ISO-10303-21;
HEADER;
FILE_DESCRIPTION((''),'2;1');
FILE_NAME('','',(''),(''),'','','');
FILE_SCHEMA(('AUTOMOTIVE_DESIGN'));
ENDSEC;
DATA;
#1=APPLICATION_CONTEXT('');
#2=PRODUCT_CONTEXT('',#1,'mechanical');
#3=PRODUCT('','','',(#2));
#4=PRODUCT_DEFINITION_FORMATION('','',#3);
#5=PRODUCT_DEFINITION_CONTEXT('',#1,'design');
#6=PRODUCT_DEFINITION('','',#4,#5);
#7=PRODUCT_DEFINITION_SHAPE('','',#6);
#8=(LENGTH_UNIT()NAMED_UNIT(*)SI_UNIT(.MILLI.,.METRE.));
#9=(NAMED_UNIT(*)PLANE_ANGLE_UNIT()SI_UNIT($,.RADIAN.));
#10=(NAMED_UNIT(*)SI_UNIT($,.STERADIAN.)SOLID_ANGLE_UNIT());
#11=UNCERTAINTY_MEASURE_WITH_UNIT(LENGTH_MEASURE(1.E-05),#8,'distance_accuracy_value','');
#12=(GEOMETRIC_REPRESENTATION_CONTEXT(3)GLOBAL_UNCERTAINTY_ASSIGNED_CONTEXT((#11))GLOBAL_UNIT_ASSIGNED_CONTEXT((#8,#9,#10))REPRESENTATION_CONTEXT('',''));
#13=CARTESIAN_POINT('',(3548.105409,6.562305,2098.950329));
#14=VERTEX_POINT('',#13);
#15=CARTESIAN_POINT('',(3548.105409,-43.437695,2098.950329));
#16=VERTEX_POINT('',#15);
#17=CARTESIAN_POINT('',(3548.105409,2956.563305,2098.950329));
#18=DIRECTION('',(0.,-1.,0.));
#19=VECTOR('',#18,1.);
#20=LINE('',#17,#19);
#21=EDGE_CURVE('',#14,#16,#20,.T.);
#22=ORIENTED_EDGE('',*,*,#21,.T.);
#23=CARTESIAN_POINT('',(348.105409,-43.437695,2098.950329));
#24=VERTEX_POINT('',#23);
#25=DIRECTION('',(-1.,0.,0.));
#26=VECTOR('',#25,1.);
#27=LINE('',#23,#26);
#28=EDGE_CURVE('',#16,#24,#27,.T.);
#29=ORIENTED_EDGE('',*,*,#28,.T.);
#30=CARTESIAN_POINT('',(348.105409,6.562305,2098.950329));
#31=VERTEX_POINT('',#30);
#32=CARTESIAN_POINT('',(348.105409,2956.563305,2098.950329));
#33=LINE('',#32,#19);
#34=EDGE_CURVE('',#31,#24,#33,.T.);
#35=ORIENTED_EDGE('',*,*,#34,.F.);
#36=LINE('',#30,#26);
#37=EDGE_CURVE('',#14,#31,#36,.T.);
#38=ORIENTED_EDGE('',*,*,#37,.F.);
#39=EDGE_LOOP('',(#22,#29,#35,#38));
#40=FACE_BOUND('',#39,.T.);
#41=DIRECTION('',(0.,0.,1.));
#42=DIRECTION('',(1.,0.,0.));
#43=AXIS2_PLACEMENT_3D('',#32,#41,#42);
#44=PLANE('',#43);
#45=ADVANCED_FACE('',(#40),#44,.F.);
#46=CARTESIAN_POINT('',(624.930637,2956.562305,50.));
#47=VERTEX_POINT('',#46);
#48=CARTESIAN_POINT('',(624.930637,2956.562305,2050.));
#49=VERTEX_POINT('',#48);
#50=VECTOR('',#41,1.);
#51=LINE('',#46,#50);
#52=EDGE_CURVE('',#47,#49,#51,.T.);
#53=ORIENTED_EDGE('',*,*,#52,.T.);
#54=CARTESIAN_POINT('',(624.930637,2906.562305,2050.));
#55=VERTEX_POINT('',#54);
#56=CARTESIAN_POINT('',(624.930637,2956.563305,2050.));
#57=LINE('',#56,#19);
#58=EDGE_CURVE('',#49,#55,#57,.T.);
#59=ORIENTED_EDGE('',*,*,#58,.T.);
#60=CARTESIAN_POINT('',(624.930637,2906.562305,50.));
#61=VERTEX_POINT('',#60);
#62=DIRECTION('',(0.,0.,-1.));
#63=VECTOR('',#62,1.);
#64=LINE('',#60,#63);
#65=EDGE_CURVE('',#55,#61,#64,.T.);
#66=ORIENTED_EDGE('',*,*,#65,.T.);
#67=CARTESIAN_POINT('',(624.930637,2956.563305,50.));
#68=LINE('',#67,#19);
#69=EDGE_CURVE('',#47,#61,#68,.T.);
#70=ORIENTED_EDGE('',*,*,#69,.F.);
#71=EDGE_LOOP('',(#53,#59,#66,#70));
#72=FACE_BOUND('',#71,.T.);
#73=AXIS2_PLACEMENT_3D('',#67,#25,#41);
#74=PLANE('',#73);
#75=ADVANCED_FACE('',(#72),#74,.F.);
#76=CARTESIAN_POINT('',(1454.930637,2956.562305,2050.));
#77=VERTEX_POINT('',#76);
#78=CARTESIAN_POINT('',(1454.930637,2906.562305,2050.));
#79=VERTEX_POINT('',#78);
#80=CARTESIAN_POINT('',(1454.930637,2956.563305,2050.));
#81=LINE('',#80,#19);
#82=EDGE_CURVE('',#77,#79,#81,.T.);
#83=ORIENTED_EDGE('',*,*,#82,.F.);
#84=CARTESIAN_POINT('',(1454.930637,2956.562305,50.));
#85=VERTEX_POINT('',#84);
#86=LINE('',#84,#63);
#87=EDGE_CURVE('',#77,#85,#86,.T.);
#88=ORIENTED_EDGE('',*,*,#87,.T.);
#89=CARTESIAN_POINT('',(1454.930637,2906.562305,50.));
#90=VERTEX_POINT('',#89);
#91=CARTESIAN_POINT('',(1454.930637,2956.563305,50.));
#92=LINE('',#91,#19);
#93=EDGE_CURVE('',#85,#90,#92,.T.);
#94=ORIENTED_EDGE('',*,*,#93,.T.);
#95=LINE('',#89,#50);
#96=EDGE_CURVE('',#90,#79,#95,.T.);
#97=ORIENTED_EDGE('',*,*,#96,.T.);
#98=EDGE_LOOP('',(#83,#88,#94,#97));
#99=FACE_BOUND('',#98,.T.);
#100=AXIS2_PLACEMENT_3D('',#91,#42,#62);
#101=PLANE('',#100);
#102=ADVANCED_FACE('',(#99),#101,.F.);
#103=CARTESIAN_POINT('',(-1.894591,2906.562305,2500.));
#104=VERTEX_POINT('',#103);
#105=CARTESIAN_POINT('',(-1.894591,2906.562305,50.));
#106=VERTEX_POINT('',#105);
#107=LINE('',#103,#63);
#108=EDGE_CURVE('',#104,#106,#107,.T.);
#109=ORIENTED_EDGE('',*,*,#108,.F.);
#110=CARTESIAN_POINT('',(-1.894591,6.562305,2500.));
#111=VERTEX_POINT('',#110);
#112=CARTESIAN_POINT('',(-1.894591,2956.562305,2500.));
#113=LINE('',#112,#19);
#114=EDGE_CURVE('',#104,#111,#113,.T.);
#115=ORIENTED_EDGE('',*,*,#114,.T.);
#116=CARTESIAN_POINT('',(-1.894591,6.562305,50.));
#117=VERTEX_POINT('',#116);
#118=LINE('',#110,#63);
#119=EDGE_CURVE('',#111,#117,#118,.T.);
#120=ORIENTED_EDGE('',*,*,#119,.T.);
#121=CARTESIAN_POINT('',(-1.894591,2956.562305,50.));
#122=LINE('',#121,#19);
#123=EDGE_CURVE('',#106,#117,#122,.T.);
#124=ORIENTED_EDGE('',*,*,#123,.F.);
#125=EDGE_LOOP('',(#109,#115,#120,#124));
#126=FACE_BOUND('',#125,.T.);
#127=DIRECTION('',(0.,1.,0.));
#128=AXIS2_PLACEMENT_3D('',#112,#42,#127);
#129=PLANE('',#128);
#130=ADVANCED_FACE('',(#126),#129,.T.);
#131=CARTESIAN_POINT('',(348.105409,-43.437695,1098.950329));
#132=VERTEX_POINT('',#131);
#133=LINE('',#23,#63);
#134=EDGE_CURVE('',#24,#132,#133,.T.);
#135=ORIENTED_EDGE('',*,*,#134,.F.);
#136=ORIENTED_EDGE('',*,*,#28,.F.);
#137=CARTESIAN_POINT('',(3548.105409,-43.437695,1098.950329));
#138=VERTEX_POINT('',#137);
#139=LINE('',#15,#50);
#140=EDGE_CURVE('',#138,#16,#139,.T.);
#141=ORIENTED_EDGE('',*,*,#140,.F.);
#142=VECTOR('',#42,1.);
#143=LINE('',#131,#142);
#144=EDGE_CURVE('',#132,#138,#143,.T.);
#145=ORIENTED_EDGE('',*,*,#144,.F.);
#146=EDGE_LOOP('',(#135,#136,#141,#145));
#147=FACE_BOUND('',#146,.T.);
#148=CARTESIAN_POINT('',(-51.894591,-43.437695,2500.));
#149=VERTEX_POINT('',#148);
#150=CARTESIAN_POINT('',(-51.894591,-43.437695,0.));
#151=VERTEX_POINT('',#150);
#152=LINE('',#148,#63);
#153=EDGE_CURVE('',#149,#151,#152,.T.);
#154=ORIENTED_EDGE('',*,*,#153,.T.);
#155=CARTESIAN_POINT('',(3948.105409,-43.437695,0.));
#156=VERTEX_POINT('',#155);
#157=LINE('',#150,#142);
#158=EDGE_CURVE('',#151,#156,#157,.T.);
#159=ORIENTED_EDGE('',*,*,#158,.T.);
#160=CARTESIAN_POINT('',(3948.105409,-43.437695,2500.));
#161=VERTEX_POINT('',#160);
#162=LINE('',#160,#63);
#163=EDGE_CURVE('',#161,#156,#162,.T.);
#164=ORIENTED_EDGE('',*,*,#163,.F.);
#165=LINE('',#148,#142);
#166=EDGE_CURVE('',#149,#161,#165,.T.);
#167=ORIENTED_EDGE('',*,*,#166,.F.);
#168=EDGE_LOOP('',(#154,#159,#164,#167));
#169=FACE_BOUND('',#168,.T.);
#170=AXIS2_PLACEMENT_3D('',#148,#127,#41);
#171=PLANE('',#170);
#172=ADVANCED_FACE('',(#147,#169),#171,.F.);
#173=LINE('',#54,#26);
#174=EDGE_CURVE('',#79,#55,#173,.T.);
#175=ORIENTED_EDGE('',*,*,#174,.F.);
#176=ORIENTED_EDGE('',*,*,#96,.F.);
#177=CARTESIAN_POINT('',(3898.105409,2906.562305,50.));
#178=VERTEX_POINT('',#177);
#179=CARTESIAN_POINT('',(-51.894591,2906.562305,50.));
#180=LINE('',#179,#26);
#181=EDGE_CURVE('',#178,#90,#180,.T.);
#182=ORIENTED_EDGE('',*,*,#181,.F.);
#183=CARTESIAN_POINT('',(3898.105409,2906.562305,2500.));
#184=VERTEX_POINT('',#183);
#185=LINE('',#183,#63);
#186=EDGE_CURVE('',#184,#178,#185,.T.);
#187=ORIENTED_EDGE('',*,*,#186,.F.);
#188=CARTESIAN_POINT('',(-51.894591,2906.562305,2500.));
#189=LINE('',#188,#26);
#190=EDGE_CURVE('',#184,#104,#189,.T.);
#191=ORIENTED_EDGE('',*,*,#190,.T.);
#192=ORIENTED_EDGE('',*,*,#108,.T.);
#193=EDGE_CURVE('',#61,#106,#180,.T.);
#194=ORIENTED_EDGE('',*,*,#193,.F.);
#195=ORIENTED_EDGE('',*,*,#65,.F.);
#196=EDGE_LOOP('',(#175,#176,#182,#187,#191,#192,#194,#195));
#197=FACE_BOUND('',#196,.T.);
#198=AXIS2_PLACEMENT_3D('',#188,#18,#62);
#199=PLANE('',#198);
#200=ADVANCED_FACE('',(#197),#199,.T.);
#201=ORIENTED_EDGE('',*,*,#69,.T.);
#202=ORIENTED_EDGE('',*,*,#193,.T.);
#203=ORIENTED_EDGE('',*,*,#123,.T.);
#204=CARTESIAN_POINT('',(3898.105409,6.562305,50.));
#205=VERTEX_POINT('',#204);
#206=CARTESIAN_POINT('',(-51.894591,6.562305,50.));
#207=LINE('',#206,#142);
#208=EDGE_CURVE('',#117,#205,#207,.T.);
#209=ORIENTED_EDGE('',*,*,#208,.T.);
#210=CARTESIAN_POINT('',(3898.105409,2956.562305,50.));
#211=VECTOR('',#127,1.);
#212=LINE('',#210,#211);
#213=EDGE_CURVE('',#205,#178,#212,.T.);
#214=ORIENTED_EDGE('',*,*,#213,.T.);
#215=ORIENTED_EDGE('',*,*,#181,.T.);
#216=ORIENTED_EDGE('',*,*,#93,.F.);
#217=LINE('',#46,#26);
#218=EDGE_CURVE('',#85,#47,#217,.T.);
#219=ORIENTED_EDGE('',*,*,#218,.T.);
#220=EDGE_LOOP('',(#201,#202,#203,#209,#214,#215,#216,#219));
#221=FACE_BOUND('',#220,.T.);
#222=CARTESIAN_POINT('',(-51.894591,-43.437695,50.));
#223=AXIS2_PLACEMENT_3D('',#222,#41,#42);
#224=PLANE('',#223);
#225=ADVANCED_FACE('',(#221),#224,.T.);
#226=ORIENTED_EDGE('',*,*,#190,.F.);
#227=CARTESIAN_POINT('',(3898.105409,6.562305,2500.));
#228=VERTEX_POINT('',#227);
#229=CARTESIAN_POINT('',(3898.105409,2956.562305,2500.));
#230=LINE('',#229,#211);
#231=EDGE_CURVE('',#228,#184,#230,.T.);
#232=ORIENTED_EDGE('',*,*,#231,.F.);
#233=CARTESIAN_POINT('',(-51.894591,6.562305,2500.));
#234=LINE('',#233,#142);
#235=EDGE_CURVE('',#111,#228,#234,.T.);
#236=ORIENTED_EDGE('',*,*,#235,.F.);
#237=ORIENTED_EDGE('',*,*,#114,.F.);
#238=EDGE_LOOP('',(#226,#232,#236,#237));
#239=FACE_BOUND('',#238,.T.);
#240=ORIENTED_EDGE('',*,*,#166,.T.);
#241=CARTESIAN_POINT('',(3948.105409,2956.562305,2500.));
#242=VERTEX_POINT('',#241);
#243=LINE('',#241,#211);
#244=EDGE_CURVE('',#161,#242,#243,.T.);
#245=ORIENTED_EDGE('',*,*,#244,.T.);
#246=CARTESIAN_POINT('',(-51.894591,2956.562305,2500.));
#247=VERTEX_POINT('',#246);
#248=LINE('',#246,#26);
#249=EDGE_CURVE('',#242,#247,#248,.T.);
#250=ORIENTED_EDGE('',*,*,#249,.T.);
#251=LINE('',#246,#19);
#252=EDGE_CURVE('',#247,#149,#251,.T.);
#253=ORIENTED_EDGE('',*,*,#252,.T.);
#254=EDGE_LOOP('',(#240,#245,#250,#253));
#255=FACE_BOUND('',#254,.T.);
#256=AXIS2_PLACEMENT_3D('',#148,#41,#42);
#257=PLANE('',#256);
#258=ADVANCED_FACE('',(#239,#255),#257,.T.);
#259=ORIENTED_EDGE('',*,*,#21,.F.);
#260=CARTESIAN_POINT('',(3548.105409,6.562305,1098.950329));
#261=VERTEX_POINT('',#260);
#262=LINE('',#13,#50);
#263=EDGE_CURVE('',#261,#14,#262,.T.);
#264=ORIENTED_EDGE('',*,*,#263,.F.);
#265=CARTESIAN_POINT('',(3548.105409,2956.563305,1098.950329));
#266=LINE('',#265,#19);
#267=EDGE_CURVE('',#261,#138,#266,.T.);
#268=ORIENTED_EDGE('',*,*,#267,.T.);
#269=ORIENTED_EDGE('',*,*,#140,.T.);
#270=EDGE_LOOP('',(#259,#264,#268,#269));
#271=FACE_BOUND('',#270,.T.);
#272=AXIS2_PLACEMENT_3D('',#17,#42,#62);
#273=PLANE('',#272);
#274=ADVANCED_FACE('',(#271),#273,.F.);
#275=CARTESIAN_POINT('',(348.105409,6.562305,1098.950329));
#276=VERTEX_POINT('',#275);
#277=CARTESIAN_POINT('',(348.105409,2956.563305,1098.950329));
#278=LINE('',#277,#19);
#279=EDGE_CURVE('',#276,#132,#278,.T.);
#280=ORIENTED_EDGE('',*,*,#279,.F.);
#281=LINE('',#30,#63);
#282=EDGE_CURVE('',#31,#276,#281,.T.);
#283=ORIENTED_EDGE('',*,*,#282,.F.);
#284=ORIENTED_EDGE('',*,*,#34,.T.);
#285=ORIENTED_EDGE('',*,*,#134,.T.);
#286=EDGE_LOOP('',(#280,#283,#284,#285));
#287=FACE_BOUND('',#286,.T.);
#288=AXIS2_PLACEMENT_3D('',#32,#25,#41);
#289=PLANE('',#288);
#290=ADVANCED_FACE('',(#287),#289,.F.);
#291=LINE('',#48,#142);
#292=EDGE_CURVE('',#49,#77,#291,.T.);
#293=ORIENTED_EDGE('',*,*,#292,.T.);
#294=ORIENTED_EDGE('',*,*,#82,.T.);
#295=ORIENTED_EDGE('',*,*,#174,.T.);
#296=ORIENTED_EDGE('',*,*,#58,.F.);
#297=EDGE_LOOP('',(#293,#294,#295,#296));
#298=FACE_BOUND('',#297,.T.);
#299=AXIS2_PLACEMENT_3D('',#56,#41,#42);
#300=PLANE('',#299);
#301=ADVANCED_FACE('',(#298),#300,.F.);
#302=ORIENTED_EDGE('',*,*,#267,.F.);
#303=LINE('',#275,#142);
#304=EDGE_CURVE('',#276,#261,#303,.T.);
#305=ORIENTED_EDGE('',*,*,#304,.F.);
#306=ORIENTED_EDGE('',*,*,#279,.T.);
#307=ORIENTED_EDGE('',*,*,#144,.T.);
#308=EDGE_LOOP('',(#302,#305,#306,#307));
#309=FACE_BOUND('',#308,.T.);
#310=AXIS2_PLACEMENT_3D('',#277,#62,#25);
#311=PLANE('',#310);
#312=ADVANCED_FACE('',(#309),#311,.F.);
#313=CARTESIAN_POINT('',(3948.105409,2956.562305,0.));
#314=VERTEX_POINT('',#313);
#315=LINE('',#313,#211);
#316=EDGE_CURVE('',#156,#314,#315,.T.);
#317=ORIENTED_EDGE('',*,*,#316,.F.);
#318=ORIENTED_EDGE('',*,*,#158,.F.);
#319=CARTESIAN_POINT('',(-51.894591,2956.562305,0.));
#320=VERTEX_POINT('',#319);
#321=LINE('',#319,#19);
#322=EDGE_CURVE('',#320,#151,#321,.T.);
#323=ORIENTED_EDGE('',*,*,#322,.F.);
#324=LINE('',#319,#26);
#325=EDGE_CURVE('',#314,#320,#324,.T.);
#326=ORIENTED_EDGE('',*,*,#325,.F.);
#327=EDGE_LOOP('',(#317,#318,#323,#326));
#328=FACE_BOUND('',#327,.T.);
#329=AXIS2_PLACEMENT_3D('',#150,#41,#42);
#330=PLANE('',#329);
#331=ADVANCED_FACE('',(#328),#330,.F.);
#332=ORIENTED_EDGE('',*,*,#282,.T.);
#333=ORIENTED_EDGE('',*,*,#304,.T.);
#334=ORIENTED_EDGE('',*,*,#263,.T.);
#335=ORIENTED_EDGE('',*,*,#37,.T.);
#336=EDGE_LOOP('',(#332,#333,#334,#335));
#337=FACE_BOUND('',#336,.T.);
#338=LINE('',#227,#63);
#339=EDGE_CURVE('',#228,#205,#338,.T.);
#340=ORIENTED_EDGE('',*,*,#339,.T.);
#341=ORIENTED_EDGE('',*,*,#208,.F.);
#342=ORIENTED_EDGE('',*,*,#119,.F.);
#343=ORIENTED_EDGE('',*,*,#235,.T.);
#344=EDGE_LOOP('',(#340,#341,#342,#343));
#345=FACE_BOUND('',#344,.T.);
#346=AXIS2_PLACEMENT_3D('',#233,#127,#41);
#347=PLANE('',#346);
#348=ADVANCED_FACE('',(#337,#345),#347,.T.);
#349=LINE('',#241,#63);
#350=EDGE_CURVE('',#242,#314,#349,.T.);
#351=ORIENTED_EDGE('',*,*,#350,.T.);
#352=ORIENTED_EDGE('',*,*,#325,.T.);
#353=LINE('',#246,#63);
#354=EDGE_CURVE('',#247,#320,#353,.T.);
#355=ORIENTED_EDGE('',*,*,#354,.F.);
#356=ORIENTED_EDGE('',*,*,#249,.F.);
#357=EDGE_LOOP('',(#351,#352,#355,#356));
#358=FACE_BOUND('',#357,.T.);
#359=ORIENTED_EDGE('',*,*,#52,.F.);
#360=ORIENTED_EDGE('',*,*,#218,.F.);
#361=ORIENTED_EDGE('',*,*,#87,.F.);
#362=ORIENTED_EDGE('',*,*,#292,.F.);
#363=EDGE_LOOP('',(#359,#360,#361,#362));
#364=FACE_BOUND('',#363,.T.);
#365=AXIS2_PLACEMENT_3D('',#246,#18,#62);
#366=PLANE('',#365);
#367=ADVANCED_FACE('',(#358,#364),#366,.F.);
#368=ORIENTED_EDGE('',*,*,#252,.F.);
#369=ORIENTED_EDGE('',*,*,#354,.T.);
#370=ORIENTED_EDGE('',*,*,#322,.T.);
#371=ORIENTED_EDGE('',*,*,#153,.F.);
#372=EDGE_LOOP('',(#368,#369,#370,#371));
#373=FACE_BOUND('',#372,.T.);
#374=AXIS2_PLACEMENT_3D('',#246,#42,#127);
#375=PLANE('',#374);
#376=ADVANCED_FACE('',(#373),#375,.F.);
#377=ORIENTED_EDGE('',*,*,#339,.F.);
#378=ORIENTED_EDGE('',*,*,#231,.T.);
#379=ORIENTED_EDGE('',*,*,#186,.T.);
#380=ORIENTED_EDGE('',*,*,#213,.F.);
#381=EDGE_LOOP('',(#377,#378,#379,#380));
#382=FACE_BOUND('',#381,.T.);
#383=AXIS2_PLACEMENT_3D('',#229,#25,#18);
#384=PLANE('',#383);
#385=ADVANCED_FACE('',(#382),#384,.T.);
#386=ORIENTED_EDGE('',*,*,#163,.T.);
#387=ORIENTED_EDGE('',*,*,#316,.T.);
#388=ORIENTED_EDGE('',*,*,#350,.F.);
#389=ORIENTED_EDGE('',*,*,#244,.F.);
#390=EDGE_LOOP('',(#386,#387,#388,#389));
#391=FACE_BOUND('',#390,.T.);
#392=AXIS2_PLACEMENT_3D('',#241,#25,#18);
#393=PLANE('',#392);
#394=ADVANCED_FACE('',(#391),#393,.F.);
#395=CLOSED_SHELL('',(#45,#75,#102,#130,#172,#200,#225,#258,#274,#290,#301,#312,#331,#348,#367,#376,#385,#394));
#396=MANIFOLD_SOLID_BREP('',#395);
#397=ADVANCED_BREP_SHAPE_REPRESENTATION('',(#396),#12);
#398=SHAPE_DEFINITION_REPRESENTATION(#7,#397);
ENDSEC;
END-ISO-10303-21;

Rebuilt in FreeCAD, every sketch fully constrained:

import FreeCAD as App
import Part
import Sketcher
Q = App.Units.Quantity


def faces_at(feature, points):
    """Names of the faces that lie closest to the given points."""
    faces = feature.Shape.Faces
    near = lambda p: min(range(len(faces)), key=lambda i: faces[i].distToShape(Part.Vertex(*p))[0])
    return sorted({f"Face{near(p) + 1}" for p in points})

doc = App.newDocument("Part")
params = doc.addObject("Spreadsheet::Sheet", "Params")
for row, (alias, value) in enumerate([
    ("sketch1_width", "4000 mm"),
    ("sketch1_height", "3000 mm"),
    ("pad1_length", "2500 mm"),
    ("thickness_wall", "50 mm"),
    ("sketch2_width", "3200 mm"),
    ("sketch2_height", "1000 mm"),
    ("sketch3_width", "830 mm"),
    ("sketch3_height", "2000 mm"),
], start=1):
    params.set(f"A{row}", alias)
    params.set(f"B{row}", "=" + value)
    params.setAlias(f"B{row}", alias)

body = doc.addObject("PartDesign::Body", "Body")

# Sketch on XY plane
sketch1 = doc.addObject("Sketcher::SketchObject", "Sketch")
body.addObject(sketch1)
sketch1.AttachmentSupport = (doc.XY_Plane, [""])
sketch1.MapMode = "FlatFace"
sketch1.addGeometry(Part.LineSegment(App.Vector(-52, 2957, 0), App.Vector(-52, -43, 0)), False)
sketch1.addGeometry(Part.LineSegment(App.Vector(-52, -43, 0), App.Vector(3948, -43, 0)), False)
sketch1.addGeometry(Part.LineSegment(App.Vector(3948, -43, 0), App.Vector(3948, 2957, 0)), False)
sketch1.addGeometry(Part.LineSegment(App.Vector(3948, 2957, 0), App.Vector(-52, 2957, 0)), False)
sketch1.addConstraint(Sketcher.Constraint("Coincident", 0, 2, 1, 1))
sketch1.addConstraint(Sketcher.Constraint("Coincident", 1, 2, 2, 1))
sketch1.addConstraint(Sketcher.Constraint("Coincident", 2, 2, 3, 1))
sketch1.addConstraint(Sketcher.Constraint("Coincident", 3, 2, 0, 1))
sketch1.addConstraint(Sketcher.Constraint("Vertical", 0))
sketch1.addConstraint(Sketcher.Constraint("Horizontal", 1))
sketch1.addConstraint(Sketcher.Constraint("Vertical", 2))
sketch1.addConstraint(Sketcher.Constraint("Horizontal", 3))
sketch1.addConstraint(Sketcher.Constraint("DistanceX", 1, 1, 1, 2, Q("4000 mm")))
sketch1.addConstraint(Sketcher.Constraint("DistanceY", 0, 2, 0, 1, Q("3000 mm")))
sketch1.addConstraint(Sketcher.Constraint("DistanceX", 0, 2, -1, 1, Q("51.894591 mm")))
sketch1.addConstraint(Sketcher.Constraint("DistanceY", 0, 2, -1, 1, Q("43.437695 mm")))
sketch1.setExpression("Constraints[8]", "Params.sketch1_width")
sketch1.setExpression("Constraints[9]", "Params.sketch1_height")
pad1 = doc.addObject("PartDesign::Pad", "Pad")
body.addObject(pad1)
pad1.Profile = sketch1
pad1.setExpression("Length", "Params.pad1_length")
doc.recompute()

thickness = doc.addObject("PartDesign::Thickness", "Thickness")
body.addObject(thickness)
thickness.Base = (pad1, faces_at(pad1, [(1948.105, 1456.562, 2500)]))
thickness.setExpression("Value", "Params.thickness_wall")
thickness.Reversed = True
thickness.Join = "Intersection"

# Sketch on XZ plane
sketch2 = doc.addObject("Sketcher::SketchObject", "Sketch001")
body.addObject(sketch2)
sketch2.AttachmentSupport = (doc.XZ_Plane, [""])
sketch2.MapMode = "FlatFace"
sketch2.AttachmentOffset = App.Placement(App.Vector(0, 0, 43.437695), App.Rotation())
sketch2.addGeometry(Part.LineSegment(App.Vector(348, 2099, 0), App.Vector(348, 1099, 0)), False)
sketch2.addGeometry(Part.LineSegment(App.Vector(348, 1099, 0), App.Vector(3548, 1099, 0)), False)
sketch2.addGeometry(Part.LineSegment(App.Vector(3548, 1099, 0), App.Vector(3548, 2099, 0)), False)
sketch2.addGeometry(Part.LineSegment(App.Vector(3548, 2099, 0), App.Vector(348, 2099, 0)), False)
sketch2.addConstraint(Sketcher.Constraint("Coincident", 0, 2, 1, 1))
sketch2.addConstraint(Sketcher.Constraint("Coincident", 1, 2, 2, 1))
sketch2.addConstraint(Sketcher.Constraint("Coincident", 2, 2, 3, 1))
sketch2.addConstraint(Sketcher.Constraint("Coincident", 3, 2, 0, 1))
sketch2.addConstraint(Sketcher.Constraint("Vertical", 0))
sketch2.addConstraint(Sketcher.Constraint("Horizontal", 1))
sketch2.addConstraint(Sketcher.Constraint("Vertical", 2))
sketch2.addConstraint(Sketcher.Constraint("Horizontal", 3))
sketch2.addConstraint(Sketcher.Constraint("DistanceX", 1, 1, 1, 2, Q("3200 mm")))
sketch2.addConstraint(Sketcher.Constraint("DistanceY", 0, 2, 0, 1, Q("1000 mm")))
sketch2.addConstraint(Sketcher.Constraint("DistanceX", -1, 1, 0, 2, Q("348.105409 mm")))
sketch2.addConstraint(Sketcher.Constraint("DistanceY", -1, 1, 0, 2, Q("1098.950329 mm")))
sketch2.setExpression("Constraints[8]", "Params.sketch2_width")
sketch2.setExpression("Constraints[9]", "Params.sketch2_height")
pocket1 = doc.addObject("PartDesign::Pocket", "Pocket")
body.addObject(pocket1)
pocket1.Profile = sketch2
pocket1.Type = "UpToFirst"

# Sketch on XZ plane
sketch3 = doc.addObject("Sketcher::SketchObject", "Sketch002")
body.addObject(sketch3)
sketch3.AttachmentSupport = (doc.XZ_Plane, [""])
sketch3.MapMode = "FlatFace"
sketch3.AttachmentOffset = App.Placement(App.Vector(0, 0, -2906.562305), App.Rotation())
sketch3.addGeometry(Part.LineSegment(App.Vector(625, 2050, 0), App.Vector(625, 50, 0)), False)
sketch3.addGeometry(Part.LineSegment(App.Vector(625, 50, 0), App.Vector(1455, 50, 0)), False)
sketch3.addGeometry(Part.LineSegment(App.Vector(1455, 50, 0), App.Vector(1455, 2050, 0)), False)
sketch3.addGeometry(Part.LineSegment(App.Vector(1455, 2050, 0), App.Vector(625, 2050, 0)), False)
sketch3.addConstraint(Sketcher.Constraint("Coincident", 0, 2, 1, 1))
sketch3.addConstraint(Sketcher.Constraint("Coincident", 1, 2, 2, 1))
sketch3.addConstraint(Sketcher.Constraint("Coincident", 2, 2, 3, 1))
sketch3.addConstraint(Sketcher.Constraint("Coincident", 3, 2, 0, 1))
sketch3.addConstraint(Sketcher.Constraint("Vertical", 0))
sketch3.addConstraint(Sketcher.Constraint("Horizontal", 1))
sketch3.addConstraint(Sketcher.Constraint("Vertical", 2))
sketch3.addConstraint(Sketcher.Constraint("Horizontal", 3))
sketch3.addConstraint(Sketcher.Constraint("DistanceX", 1, 1, 1, 2, Q("830 mm")))
sketch3.addConstraint(Sketcher.Constraint("DistanceY", 0, 2, 0, 1, Q("2000 mm")))
sketch3.addConstraint(Sketcher.Constraint("DistanceY", -1, 1, 0, 2, Q("50 mm")))
sketch3.addConstraint(Sketcher.Constraint("DistanceX", -1, 1, 0, 2, Q("624.930637 mm")))
sketch3.setExpression("Constraints[8]", "Params.sketch3_width")
sketch3.setExpression("Constraints[9]", "Params.sketch3_height")
pocket2 = doc.addObject("PartDesign::Pocket", "Pocket001")
body.addObject(pocket2)
pocket2.Profile = sketch3
pocket2.Type = "UpToFirst"

doc.recompute()
